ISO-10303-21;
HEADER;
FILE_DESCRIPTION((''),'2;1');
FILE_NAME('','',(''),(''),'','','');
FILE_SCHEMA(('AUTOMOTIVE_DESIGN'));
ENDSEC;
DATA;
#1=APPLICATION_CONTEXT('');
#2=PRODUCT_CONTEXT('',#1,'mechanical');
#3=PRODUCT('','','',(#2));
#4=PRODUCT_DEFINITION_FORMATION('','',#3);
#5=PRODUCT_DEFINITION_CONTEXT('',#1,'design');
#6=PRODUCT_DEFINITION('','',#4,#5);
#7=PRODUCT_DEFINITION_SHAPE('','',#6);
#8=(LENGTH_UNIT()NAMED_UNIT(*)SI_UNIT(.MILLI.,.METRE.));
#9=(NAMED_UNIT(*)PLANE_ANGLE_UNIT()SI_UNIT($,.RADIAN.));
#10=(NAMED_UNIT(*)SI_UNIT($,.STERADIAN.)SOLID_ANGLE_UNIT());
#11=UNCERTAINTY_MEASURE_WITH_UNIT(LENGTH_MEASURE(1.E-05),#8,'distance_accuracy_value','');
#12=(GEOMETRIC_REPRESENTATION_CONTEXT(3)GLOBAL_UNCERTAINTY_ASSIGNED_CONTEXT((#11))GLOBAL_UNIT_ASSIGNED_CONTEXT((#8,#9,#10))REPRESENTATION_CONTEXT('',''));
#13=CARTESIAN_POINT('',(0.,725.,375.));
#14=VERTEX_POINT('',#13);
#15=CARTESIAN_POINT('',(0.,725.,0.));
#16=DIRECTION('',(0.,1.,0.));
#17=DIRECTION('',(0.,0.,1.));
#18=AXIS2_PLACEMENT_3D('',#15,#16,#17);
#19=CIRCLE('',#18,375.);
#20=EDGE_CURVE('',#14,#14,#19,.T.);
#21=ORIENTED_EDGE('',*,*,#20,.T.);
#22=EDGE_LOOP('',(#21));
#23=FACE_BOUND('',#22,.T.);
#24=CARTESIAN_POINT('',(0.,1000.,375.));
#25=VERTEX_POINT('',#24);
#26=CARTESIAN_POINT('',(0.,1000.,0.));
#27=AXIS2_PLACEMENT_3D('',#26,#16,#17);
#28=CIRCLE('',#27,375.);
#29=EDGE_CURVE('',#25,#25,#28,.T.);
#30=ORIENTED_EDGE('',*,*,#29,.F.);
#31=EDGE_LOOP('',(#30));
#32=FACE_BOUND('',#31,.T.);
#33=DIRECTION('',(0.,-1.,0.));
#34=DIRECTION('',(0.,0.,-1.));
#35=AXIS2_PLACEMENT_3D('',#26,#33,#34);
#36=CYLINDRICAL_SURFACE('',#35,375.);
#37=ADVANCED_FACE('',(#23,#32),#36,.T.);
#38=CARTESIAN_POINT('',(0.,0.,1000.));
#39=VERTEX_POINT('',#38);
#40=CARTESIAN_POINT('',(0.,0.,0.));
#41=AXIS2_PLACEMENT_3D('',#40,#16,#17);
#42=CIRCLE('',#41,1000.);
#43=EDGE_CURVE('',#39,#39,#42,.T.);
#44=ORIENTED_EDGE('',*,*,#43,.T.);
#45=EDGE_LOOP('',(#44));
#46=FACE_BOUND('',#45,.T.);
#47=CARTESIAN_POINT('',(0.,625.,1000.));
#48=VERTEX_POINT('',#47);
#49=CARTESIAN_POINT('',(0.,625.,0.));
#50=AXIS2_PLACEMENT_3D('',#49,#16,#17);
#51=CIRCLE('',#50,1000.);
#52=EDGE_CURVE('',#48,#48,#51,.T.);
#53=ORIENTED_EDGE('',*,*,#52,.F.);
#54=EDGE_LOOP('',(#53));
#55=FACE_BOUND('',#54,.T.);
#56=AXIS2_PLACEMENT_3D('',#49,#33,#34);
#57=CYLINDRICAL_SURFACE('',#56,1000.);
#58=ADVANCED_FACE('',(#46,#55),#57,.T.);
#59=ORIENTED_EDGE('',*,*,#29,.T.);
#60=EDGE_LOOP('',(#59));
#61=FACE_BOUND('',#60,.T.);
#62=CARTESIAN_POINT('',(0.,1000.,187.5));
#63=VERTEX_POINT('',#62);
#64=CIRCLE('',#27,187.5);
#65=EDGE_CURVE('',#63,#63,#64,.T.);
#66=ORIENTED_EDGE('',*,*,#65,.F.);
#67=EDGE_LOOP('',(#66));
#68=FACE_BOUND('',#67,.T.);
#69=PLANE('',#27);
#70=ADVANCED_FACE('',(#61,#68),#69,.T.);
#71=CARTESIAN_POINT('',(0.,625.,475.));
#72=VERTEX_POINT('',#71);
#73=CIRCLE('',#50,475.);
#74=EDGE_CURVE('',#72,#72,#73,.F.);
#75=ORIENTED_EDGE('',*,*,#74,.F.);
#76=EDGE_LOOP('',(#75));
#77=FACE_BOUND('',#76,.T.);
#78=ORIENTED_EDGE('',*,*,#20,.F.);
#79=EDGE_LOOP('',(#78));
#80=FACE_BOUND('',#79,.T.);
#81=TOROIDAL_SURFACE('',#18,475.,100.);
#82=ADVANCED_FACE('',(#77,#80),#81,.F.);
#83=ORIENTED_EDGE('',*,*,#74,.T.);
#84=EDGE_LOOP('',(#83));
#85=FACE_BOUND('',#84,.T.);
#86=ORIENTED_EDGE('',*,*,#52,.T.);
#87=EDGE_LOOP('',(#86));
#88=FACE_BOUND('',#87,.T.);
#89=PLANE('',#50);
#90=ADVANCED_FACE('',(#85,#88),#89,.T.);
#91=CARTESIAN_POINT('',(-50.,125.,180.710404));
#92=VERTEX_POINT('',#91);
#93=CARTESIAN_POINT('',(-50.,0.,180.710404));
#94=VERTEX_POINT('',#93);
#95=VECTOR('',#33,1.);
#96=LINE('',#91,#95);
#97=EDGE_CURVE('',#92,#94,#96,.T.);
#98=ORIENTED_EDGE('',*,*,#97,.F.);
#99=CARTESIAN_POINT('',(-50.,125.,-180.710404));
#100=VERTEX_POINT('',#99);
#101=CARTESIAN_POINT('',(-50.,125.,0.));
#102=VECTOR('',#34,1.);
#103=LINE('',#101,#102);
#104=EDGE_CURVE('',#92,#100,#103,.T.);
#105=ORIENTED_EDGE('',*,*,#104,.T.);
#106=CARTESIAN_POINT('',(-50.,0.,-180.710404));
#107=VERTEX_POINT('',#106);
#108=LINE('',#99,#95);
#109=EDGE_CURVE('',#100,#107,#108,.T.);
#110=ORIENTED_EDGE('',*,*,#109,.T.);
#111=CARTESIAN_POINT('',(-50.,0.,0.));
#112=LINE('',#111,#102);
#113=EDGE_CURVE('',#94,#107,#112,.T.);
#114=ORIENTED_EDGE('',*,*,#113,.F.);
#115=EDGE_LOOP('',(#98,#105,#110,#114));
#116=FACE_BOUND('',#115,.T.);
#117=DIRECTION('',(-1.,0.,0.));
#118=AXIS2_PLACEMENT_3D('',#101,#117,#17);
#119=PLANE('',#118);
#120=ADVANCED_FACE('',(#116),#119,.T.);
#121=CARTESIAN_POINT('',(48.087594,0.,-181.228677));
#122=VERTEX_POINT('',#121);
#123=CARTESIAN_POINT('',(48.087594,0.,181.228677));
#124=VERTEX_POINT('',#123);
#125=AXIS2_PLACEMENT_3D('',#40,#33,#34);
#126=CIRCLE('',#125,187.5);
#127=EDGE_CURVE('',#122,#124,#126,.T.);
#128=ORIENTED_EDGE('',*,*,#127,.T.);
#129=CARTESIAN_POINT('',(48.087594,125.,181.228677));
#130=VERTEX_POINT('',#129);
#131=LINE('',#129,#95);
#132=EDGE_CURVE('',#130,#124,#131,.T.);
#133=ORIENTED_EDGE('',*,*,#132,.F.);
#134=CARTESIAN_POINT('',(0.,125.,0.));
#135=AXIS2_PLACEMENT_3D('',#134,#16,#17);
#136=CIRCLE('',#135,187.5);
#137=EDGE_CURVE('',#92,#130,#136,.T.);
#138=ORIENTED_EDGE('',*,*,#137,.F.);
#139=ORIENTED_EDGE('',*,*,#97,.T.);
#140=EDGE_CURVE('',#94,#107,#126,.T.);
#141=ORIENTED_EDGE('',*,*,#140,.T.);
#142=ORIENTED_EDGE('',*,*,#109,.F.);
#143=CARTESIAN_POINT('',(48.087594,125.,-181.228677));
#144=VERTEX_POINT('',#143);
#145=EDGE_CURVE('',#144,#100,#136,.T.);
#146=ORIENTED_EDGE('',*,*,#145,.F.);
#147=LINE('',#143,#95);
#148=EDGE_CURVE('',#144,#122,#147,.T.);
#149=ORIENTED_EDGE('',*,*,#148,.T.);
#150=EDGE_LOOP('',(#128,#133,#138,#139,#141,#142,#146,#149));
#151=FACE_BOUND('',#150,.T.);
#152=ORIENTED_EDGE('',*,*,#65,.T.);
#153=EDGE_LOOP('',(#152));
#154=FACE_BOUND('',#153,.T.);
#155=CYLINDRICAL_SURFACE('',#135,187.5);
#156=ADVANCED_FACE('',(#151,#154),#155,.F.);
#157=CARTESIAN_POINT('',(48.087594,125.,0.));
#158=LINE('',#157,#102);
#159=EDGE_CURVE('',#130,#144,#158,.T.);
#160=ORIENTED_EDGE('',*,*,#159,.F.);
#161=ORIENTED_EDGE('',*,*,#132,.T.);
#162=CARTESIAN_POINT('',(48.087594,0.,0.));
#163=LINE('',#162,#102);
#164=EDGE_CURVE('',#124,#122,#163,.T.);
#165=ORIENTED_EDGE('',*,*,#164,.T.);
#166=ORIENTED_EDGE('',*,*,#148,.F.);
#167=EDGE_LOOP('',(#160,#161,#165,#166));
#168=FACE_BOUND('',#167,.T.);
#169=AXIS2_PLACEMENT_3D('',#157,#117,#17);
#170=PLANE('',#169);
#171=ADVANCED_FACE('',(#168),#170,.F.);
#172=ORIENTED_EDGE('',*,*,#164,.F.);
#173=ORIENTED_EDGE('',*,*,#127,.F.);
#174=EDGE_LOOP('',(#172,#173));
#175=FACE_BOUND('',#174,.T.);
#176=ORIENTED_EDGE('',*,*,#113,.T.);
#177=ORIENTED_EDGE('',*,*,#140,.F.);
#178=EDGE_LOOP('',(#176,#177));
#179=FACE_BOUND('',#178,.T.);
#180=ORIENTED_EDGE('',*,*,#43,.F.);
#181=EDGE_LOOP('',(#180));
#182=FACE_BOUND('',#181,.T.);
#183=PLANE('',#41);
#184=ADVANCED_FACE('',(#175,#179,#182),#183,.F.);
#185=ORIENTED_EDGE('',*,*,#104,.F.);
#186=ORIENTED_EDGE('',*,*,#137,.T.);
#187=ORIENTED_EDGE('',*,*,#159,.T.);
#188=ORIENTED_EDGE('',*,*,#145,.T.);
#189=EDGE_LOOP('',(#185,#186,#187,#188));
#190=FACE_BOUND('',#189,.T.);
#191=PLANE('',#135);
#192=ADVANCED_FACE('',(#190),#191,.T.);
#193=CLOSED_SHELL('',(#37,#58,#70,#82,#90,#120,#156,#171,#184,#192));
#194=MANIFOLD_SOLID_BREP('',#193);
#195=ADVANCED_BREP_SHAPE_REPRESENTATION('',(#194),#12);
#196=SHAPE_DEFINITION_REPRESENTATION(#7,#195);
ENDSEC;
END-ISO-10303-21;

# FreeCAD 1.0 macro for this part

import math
import FreeCAD as App
import Part
import Sketcher
Q = App.Units.Quantity


def edges_at(feature, points):
    """Names of the edges that pass closest to the given points."""
    edges = feature.Shape.Edges
    near = lambda p: min(range(len(edges)), key=lambda i: edges[i].distToShape(Part.Vertex(*p))[0])
    return sorted({f"Edge{near(p) + 1}" for p in points})

doc = App.newDocument("Part")
body = doc.addObject("PartDesign::Body", "Body")

sketch1 = body.newObject("Sketcher::SketchObject", "Sketch")
sketch1.AttachmentSupport = (doc.getObject("XZ_Plane"), [""])
sketch1.MapMode = "FlatFace"
sketch1.addGeometry(Part.Circle(App.Vector(0, 0, 0), App.Vector(0, 0, 1), 1000), False)
sketch1.addConstraint(Sketcher.Constraint("Coincident", 0, 3, -1, 1))
sketch1.addConstraint(Sketcher.Constraint("Diameter", 0, Q("2000 mm")))
pad1 = body.newObject("PartDesign::Pad", "Pad")
pad1.Profile = sketch1
pad1.Length = 625
pad1.Reversed = True

sketch2 = body.newObject("Sketcher::SketchObject", "Sketch001")
sketch2.AttachmentSupport = (doc.getObject("XZ_Plane"), [""])
sketch2.MapMode = "FlatFace"
sketch2.AttachmentOffset = App.Placement(App.Vector(0, 0, -625), App.Rotation())
sketch2.addGeometry(Part.Circle(App.Vector(0, 0, 0), App.Vector(0, 0, 1), 375), False)
sketch2.addConstraint(Sketcher.Constraint("Coincident", 0, 3, -1, 1))
sketch2.addConstraint(Sketcher.Constraint("Diameter", 0, Q("750 mm")))
pad2 = body.newObject("PartDesign::Pad", "Pad001")
pad2.Profile = sketch2
pad2.Length = 375
pad2.Reversed = True
doc.recompute()

fillet = body.newObject("PartDesign::Fillet", "Fillet")
fillet.Base = (pad2, edges_at(pad2, [(0, 625, -375)]))
fillet.Radius = 100

sketch3 = body.newObject("Sketcher::SketchObject", "Sketch002")
sketch3.AttachmentSupport = (doc.getObject("XZ_Plane"), [""])
sketch3.MapMode = "FlatFace"
sketch3.AttachmentOffset = App.Placement(App.Vector(0, 0, -1000), App.Rotation())
sketch3.addGeometry(Part.Circle(App.Vector(0, 0, 0), App.Vector(0, 0, 1), 187.5), False)
sketch3.addConstraint(Sketcher.Constraint("Coincident", 0, 3, -1, 1))
sketch3.addConstraint(Sketcher.Constraint("Diameter", 0, Q("375 mm")))
pocket1 = body.newObject("PartDesign::Pocket", "Pocket")
pocket1.Profile = sketch3
pocket1.Length = 875
pocket1.Reversed = True

sketch4 = body.newObject("Sketcher::SketchObject", "Sketch003")
sketch4.AttachmentSupport = (doc.getObject("XZ_Plane"), [""])
sketch4.MapMode = "FlatFace"
sketch4.AttachmentOffset = App.Placement(App.Vector(0, 0, -125), App.Rotation())
sketch4.addGeometry(Part.LineSegment(App.Vector(-50, -180.710404, 0), App.Vector(-50, 180.710404, 0)), False)
sketch4.addGeometry(Part.ArcOfCircle(Part.Circle(App.Vector(0, 0, 0), App.Vector(0, 0, 1), 187.5), math.radians(105.46601), math.radians(254.53399)), False)
sketch4.addGeometry(Part.ArcOfCircle(Part.Circle(App.Vector(0, 0, 0), App.Vector(0, 0, 1), 187.5), math.radians(-75.139461), math.radians(75.139461)), False)
sketch4.addGeometry(Part.LineSegment(App.Vector(48.087594, 181.228677, 0), App.Vector(48.087594, -181.228677, 0)), False)
sketch4.addConstraint(Sketcher.Constraint("Coincident", 0, 1, 1, 2))
sketch4.addConstraint(Sketcher.Constraint("Coincident", 1, 1, 0, 2))
sketch4.addConstraint(Sketcher.Constraint("Coincident", 2, 1, 3, 2))
sketch4.addConstraint(Sketcher.Constraint("Coincident", 3, 1, 2, 2))
sketch4.addConstraint(Sketcher.Constraint("Vertical", 0))
sketch4.addConstraint(Sketcher.Constraint("Vertical", 3))
sketch4.addConstraint(Sketcher.Constraint("Coincident", 1, 3, -1, 1))
sketch4.addConstraint(Sketcher.Constraint("Coincident", 2, 3, -1, 1))
sketch4.addConstraint(Sketcher.Constraint("Equal", 1, 2))
sketch4.addConstraint(Sketcher.Constraint("Radius", 1, Q("187.5 mm")))
sketch4.addConstraint(Sketcher.Constraint("DistanceX", 0, 1, -1, 1, Q("50 mm")))
sketch4.addConstraint(Sketcher.Constraint("DistanceY", 3, 2, 3, 1, Q("362.457354 mm")))
pocket2 = body.newObject("PartDesign::Pocket", "Pocket001")
pocket2.Profile = sketch4
pocket2.Length = 125
pocket2.Reversed = True

doc.recompute()
